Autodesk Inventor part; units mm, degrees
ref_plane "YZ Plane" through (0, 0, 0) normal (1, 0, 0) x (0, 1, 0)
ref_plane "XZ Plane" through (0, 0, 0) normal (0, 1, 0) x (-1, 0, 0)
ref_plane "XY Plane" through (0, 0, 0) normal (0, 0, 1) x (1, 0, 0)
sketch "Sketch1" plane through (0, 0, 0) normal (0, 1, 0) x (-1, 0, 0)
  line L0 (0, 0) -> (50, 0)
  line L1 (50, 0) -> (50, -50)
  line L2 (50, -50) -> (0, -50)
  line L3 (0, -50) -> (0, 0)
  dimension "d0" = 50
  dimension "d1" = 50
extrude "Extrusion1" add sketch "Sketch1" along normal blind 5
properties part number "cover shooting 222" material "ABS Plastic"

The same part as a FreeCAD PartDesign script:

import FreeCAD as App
import Part
import Sketcher
from FreeCAD import Vector
Q = App.Units.Quantity

doc = App.newDocument("Part")
params = doc.addObject("Spreadsheet::Sheet", "Params")
for row, (alias, value) in enumerate([
    ("sketch1_width", "50 mm"),
    ("pad1_length", "5 mm"),
], start=1):
    params.set(f"A{row}", alias)
    params.set(f"B{row}", "=" + value)
    params.setAlias(f"B{row}", alias)

body = doc.addObject("PartDesign::Body", "Body")

sketch1 = body.newObject("Sketcher::SketchObject", "Sketch")
sketch1.AttachmentSupport = (doc.getObject("XZ_Plane"), [""])
sketch1.MapMode = "FlatFace"
sketch1.addGeometry(Part.LineSegment(Vector(-50, 0, 0), Vector(0, 0, 0)), False)
sketch1.addGeometry(Part.LineSegment(Vector(0, 0, 0), Vector(0, -50, 0)), False)
sketch1.addGeometry(Part.LineSegment(Vector(0, -50, 0), Vector(-50, -50, 0)), False)
sketch1.addGeometry(Part.LineSegment(Vector(-50, -50, 0), Vector(-50, 0, 0)), False)
sketch1.addConstraint(Sketcher.Constraint("Coincident", 0, 2, 1, 1))
sketch1.addConstraint(Sketcher.Constraint("Coincident", 1, 2, 2, 1))
sketch1.addConstraint(Sketcher.Constraint("Coincident", 2, 2, 3, 1))
sketch1.addConstraint(Sketcher.Constraint("Coincident", 3, 2, 0, 1))
sketch1.addConstraint(Sketcher.Constraint("Horizontal", 0))
sketch1.addConstraint(Sketcher.Constraint("Vertical", 1))
sketch1.addConstraint(Sketcher.Constraint("Horizontal", 2))
sketch1.addConstraint(Sketcher.Constraint("Vertical", 3))
sketch1.addConstraint(Sketcher.Constraint("Coincident", 0, 2, -1, 1))
sketch1.addConstraint(Sketcher.Constraint("Equal", 2, 1))
sketch1.addConstraint(Sketcher.Constraint("DistanceX", 0, 1, 0, 2, Q("50 mm")))
sketch1.setExpression("Constraints[10]", "Params.sketch1_width")
pad1 = body.newObject("PartDesign::Pad", "Pad")
pad1.Profile = sketch1
pad1.setExpression("Length", "Params.pad1_length")
pad1.Reversed = True

doc.recompute()
